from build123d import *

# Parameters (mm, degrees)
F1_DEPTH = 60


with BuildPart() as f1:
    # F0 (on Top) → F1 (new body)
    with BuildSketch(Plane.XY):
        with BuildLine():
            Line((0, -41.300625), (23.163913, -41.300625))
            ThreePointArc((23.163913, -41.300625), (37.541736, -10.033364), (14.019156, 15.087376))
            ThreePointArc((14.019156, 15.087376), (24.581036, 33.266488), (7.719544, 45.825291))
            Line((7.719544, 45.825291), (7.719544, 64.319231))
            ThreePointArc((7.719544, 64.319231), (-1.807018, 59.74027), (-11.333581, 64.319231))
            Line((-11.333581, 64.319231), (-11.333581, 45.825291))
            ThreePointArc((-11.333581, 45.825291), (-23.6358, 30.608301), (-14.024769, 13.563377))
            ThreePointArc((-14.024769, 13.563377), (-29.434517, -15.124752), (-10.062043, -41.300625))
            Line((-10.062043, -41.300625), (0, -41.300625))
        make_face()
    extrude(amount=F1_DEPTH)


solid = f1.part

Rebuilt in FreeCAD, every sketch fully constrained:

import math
import FreeCAD as App
import Part
import Sketcher
from FreeCAD import Vector
Q = App.Units.Quantity

doc = App.newDocument("Part")
params = doc.addObject("Spreadsheet::Sheet", "Params")
for row, (alias, value) in enumerate([
    ("pad1_length", "60 mm"),
], start=1):
    params.set(f"A{row}", alias)
    params.set(f"B{row}", "=" + value)
    params.setAlias(f"B{row}", alias)

body = doc.addObject("PartDesign::Body", "Body")

sketch1 = body.newObject("Sketcher::SketchObject", "Sketch")
sketch1.AttachmentSupport = (doc.getObject("XY_Plane"), [""])
sketch1.MapMode = "FlatFace"
sketch1.addGeometry([
    Part.ArcOfCircle(Part.Circle(Vector(7, -15, 0), Vector(0, 0, 1), 31), math.radians(-59), math.radians(77)),
    Part.ArcOfCircle(Part.Circle(Vector(9, 30, 0), Vector(0, 0, 1), 16), math.radians(-72), math.radians(95)),
    Part.LineSegment(Vector(8, 46, 0), Vector(8, 64, 0)),
    Part.ArcOfCircle(Part.Circle(Vector(-2, 72, 0), Vector(0, 0, 1), 12), math.radians(-141), math.radians(-39)),
    Part.LineSegment(Vector(-11, 64, 0), Vector(-11, 46, 0)),
    Part.ArcOfCircle(Part.Circle(Vector(-6, 29, 0), Vector(0, 0, 1), 17), math.radians(107), math.radians(244)),
    Part.ArcOfCircle(Part.Circle(Vector(1, -13, 0), Vector(0, 0, 1), 30), math.radians(119), math.radians(249)),
    Part.LineSegment(Vector(-10, -41, 0), Vector(23, -41, 0)),
], False)
sketch1.addConstraint([
    Sketcher.Constraint("Coincident", 0, 2, 1, 1),
    Sketcher.Constraint("Coincident", 1, 2, 2, 1),
    Sketcher.Constraint("Coincident", 2, 2, 3, 2),
    Sketcher.Constraint("Coincident", 3, 1, 4, 1),
    Sketcher.Constraint("Coincident", 4, 2, 5, 1),
    Sketcher.Constraint("Coincident", 5, 2, 6, 1),
    Sketcher.Constraint("Coincident", 6, 2, 7, 1),
    Sketcher.Constraint("Coincident", 7, 2, 0, 1),
    Sketcher.Constraint("Vertical", 2),
    Sketcher.Constraint("Vertical", 4),
    Sketcher.Constraint("Horizontal", 7),
    Sketcher.Constraint("Horizontal", 2, 2, 3, 1),
    Sketcher.Constraint("Horizontal", 1, 2, 4, 2),
    Sketcher.Constraint("Radius", 0, Q("30.84635 mm")),
    Sketcher.Constraint("Radius", 5, Q("17.413031 mm")),
    Sketcher.Constraint("Radius", 1, Q("15.790643 mm")),
    Sketcher.Constraint("Radius", 3, Q("12.199523 mm")),
    Sketcher.Constraint("Radius", 6, Q("30.409606 mm")),
    Sketcher.Constraint("DistanceY", 5, 2, 0, 2, Q("1.523999 mm")),
    Sketcher.Constraint("DistanceY", 6, 2, 5, 2, Q("54.864002 mm")),
    Sketcher.Constraint("DistanceY", 2, 1, 2, 2, Q("18.49394 mm")),
    Sketcher.Constraint("DistanceX", -1, 1, 0, 3, Q("7.0932 mm")),
    Sketcher.Constraint("DistanceY", 1, 2, 3, 3, Q("26.114502 mm")),
    Sketcher.Constraint("DistanceX", 6, 2, 0, 2, Q("24.081199 mm")),
    Sketcher.Constraint("DistanceX", 7, 1, 7, 2, Q("33.225956 mm")),
    Sketcher.Constraint("DistanceX", 3, 3, -1, 1, Q("1.807019 mm")),
    Sketcher.Constraint("DistanceX", 5, 3, -1, 1, Q("6.283038 mm")),
    Sketcher.Constraint("DistanceY", -1, 1, 5, 3, Q("29.160788 mm")),
    Sketcher.Constraint("DistanceY", 6, 3, -1, 1, Q("12.934029 mm")),
])
pad1 = body.newObject("PartDesign::Pad", "Pad")
pad1.Profile = sketch1
pad1.setExpression("Length", "Params.pad1_length")

doc.recompute()
